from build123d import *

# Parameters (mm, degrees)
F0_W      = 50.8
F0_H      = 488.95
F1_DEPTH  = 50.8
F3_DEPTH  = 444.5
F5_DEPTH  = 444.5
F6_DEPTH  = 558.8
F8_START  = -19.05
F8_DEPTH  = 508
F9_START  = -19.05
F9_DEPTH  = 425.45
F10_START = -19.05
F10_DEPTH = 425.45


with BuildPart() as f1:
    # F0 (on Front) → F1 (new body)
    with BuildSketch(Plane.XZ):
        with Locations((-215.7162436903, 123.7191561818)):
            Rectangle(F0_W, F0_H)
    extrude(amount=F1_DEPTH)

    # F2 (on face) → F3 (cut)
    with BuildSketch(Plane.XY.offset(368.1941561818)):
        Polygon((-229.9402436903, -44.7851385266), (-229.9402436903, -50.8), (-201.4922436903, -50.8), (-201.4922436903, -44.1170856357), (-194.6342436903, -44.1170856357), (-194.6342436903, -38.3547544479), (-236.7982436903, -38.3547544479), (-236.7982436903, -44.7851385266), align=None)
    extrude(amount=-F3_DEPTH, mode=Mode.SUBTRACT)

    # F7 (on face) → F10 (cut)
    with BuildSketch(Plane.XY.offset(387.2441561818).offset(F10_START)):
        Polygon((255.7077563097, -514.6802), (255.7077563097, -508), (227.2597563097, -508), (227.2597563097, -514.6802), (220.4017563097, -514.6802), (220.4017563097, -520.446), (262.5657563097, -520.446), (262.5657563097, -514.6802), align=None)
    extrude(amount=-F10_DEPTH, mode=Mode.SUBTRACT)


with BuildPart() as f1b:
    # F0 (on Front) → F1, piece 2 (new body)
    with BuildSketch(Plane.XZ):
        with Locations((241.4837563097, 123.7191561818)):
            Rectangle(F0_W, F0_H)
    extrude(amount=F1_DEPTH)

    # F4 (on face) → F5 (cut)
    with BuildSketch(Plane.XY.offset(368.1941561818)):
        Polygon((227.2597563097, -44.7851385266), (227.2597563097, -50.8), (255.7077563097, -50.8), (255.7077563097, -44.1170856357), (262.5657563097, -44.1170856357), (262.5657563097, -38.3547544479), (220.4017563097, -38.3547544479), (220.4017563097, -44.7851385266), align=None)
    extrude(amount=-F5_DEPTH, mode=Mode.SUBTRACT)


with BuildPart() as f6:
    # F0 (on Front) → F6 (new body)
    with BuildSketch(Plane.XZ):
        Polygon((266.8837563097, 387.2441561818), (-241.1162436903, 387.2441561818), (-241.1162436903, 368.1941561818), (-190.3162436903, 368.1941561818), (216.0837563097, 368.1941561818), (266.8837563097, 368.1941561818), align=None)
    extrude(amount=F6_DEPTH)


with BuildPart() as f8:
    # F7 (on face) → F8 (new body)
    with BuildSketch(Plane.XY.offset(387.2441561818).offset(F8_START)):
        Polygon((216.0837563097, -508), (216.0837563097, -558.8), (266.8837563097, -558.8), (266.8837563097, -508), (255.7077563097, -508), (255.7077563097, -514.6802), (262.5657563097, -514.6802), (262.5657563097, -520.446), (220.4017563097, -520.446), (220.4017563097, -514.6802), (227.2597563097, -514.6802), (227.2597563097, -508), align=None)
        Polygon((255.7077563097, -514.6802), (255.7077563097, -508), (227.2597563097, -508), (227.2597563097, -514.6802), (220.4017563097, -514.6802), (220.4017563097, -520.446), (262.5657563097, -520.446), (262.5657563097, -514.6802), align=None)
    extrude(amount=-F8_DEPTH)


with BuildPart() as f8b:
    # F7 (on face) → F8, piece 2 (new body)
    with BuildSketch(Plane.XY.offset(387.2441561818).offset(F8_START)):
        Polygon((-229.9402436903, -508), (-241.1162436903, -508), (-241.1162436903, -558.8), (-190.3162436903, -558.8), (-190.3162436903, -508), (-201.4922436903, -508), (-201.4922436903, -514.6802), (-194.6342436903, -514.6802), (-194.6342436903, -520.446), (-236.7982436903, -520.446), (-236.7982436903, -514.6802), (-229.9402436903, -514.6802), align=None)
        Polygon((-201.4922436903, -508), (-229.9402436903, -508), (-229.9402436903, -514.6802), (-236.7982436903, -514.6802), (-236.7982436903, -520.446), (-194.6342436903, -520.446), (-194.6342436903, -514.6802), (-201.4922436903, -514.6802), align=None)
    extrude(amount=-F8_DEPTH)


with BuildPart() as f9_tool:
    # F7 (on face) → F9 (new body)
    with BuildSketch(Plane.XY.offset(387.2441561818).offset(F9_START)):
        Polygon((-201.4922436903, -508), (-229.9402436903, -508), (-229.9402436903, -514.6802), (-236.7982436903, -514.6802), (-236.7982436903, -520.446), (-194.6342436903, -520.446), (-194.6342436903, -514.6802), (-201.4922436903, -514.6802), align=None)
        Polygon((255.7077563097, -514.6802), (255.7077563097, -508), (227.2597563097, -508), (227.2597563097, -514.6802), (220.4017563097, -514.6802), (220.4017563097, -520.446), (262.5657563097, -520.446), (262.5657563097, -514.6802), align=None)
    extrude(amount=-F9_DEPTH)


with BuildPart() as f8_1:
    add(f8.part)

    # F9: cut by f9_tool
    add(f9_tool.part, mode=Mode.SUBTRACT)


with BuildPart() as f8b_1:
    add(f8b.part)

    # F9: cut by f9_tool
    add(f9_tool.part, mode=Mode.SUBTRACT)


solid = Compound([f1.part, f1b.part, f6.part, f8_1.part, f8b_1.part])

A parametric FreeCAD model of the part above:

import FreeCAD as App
import Part
import Sketcher
Q = App.Units.Quantity

doc = App.newDocument("Part")
body = doc.addObject("PartDesign::Body", "Body")

sketch1 = doc.addObject("Sketcher::SketchObject", "Sketch")
body.addObject(sketch1)
sketch1.AttachmentSupport = (doc.XZ_Plane, [""])
sketch1.MapMode = "FlatFace"
sketch1.addGeometry(Part.LineSegment(App.Vector(-241, 368, 0), App.Vector(-241, -121, 0)), False)
sketch1.addGeometry(Part.LineSegment(App.Vector(-241, -121, 0), App.Vector(-190, -121, 0)), False)
sketch1.addGeometry(Part.LineSegment(App.Vector(-190, -121, 0), App.Vector(-190, 368, 0)), False)
sketch1.addGeometry(Part.LineSegment(App.Vector(-190, 368, 0), App.Vector(-241, 368, 0)), False)
sketch1.addConstraint(Sketcher.Constraint("Coincident", 0, 2, 1, 1))
sketch1.addConstraint(Sketcher.Constraint("Coincident", 1, 2, 2, 1))
sketch1.addConstraint(Sketcher.Constraint("Coincident", 2, 2, 3, 1))
sketch1.addConstraint(Sketcher.Constraint("Coincident", 3, 2, 0, 1))
sketch1.addConstraint(Sketcher.Constraint("Vertical", 0))
sketch1.addConstraint(Sketcher.Constraint("Horizontal", 1))
sketch1.addConstraint(Sketcher.Constraint("Vertical", 2))
sketch1.addConstraint(Sketcher.Constraint("Horizontal", 3))
sketch1.addConstraint(Sketcher.Constraint("DistanceX", 1, 1, 1, 2, Q("2 in")))
sketch1.addConstraint(Sketcher.Constraint("DistanceY", 0, 2, 0, 1, Q("19.25 in")))
sketch1.addConstraint(Sketcher.Constraint("DistanceX", 0, 2, -1, 1, Q("241.116244 mm")))
sketch1.addConstraint(Sketcher.Constraint("DistanceY", 0, 2, -1, 1, Q("120.755844 mm")))
pad1 = doc.addObject("PartDesign::Pad", "Pad")
body.addObject(pad1)
pad1.Profile = sketch1
pad1.Length = Q("2 in")

sketch2 = doc.addObject("Sketcher::SketchObject", "Sketch001")
body.addObject(sketch2)
sketch2.AttachmentSupport = (doc.XY_Plane, [""])
sketch2.MapMode = "FlatFace"
sketch2.AttachmentOffset = App.Placement(App.Vector(0, 0, 368.194156), App.Rotation())
sketch2.addGeometry(Part.LineSegment(App.Vector(-230, -45, 0), App.Vector(-230, -51, 0)), False)
sketch2.addGeometry(Part.LineSegment(App.Vector(-230, -51, 0), App.Vector(-201, -51, 0)), False)
sketch2.addGeometry(Part.LineSegment(App.Vector(-201, -51, 0), App.Vector(-201, -44, 0)), False)
sketch2.addGeometry(Part.LineSegment(App.Vector(-201, -44, 0), App.Vector(-195, -44, 0)), False)
sketch2.addGeometry(Part.LineSegment(App.Vector(-195, -44, 0), App.Vector(-195, -38, 0)), False)
sketch2.addGeometry(Part.LineSegment(App.Vector(-195, -38, 0), App.Vector(-237, -38, 0)), False)
sketch2.addGeometry(Part.LineSegment(App.Vector(-237, -38, 0), App.Vector(-237, -45, 0)), False)
sketch2.addGeometry(Part.LineSegment(App.Vector(-237, -45, 0), App.Vector(-230, -45, 0)), False)
sketch2.addConstraint(Sketcher.Constraint("Coincident", 0, 2, 1, 1))
sketch2.addConstraint(Sketcher.Constraint("Coincident", 1, 2, 2, 1))
sketch2.addConstraint(Sketcher.Constraint("Coincident", 2, 2, 3, 1))
sketch2.addConstraint(Sketcher.Constraint("Coincident", 3, 2, 4, 1))
sketch2.addConstraint(Sketcher.Constraint("Coincident", 4, 2, 5, 1))
sketch2.addConstraint(Sketcher.Constraint("Coincident", 5, 2, 6, 1))
sketch2.addConstraint(Sketcher.Constraint("Coincident", 6, 2, 7, 1))
sketch2.addConstraint(Sketcher.Constraint("Coincident", 7, 2, 0, 1))
sketch2.addConstraint(Sketcher.Constraint("Vertical", 0))
sketch2.addConstraint(Sketcher.Constraint("Horizontal", 1))
sketch2.addConstraint(Sketcher.Constraint("Vertical", 2))
sketch2.addConstraint(Sketcher.Constraint("Horizontal", 3))
sketch2.addConstraint(Sketcher.Constraint("Vertical", 4))
sketch2.addConstraint(Sketcher.Constraint("Horizontal", 5))
sketch2.addConstraint(Sketcher.Constraint("Vertical", 6))
sketch2.addConstraint(Sketcher.Constraint("Horizontal", 7))
sketch2.addConstraint(Sketcher.Constraint("Equal", 3, 7))
sketch2.addConstraint(Sketcher.Constraint("DistanceY", 0, 2, -1, 1, Q("2 in")))
sketch2.addConstraint(Sketcher.Constraint("DistanceX", 1, 1, 1, 2, Q("1.12 in")))
sketch2.addConstraint(Sketcher.Constraint("DistanceX", 3, 1, 3, 2, Q("0.27 in")))
sketch2.addConstraint(Sketcher.Constraint("DistanceY", 0, 2, 0, 1, Q("6.014861 mm")))
sketch2.addConstraint(Sketcher.Constraint("DistanceY", 4, 1, 4, 2, Q("5.762331 mm")))
sketch2.addConstraint(Sketcher.Constraint("DistanceY", 2, 1, 2, 2, Q("6.682914 mm")))
sketch2.addConstraint(Sketcher.Constraint("DistanceX", 0, 2, -1, 1, Q("229.940244 mm")))
pocket1 = doc.addObject("PartDesign::Pocket", "Pocket")
body.addObject(pocket1)
pocket1.Profile = sketch2
pocket1.Length = Q("17.5 in")

sketch3 = doc.addObject("Sketcher::SketchObject", "Sketch002")
body.addObject(sketch3)
sketch3.AttachmentSupport = (doc.XY_Plane, [""])
sketch3.MapMode = "FlatFace"
sketch3.AttachmentOffset = App.Placement(App.Vector(0, 0, 368.194156), App.Rotation())
sketch3.addGeometry(Part.LineSegment(App.Vector(256, -515, 0), App.Vector(256, -508, 0)), False)
sketch3.addGeometry(Part.LineSegment(App.Vector(256, -508, 0), App.Vector(227, -508, 0)), False)
sketch3.addGeometry(Part.LineSegment(App.Vector(227, -508, 0), App.Vector(227, -515, 0)), False)
sketch3.addGeometry(Part.LineSegment(App.Vector(227, -515, 0), App.Vector(220, -515, 0)), False)
sketch3.addGeometry(Part.LineSegment(App.Vector(220, -515, 0), App.Vector(220, -520, 0)), False)
sketch3.addGeometry(Part.LineSegment(App.Vector(220, -520, 0), App.Vector(263, -520, 0)), False)
sketch3.addGeometry(Part.LineSegment(App.Vector(263, -520, 0), App.Vector(263, -515, 0)), False)
sketch3.addGeometry(Part.LineSegment(App.Vector(263, -515, 0), App.Vector(256, -515, 0)), False)
sketch3.addConstraint(Sketcher.Constraint("Coincident", 0, 2, 1, 1))
sketch3.addConstraint(Sketcher.Constraint("Coincident", 1, 2, 2, 1))
sketch3.addConstraint(Sketcher.Constraint("Coincident", 2, 2, 3, 1))
sketch3.addConstraint(Sketcher.Constraint("Coincident", 3, 2, 4, 1))
sketch3.addConstraint(Sketcher.Constraint("Coincident", 4, 2, 5, 1))
sketch3.addConstraint(Sketcher.Constraint("Coincident", 5, 2, 6, 1))
sketch3.addConstraint(Sketcher.Constraint("Coincident", 6, 2, 7, 1))
sketch3.addConstraint(Sketcher.Constraint("Coincident", 7, 2, 0, 1))
sketch3.addConstraint(Sketcher.Constraint("Vertical", 0))
sketch3.addConstraint(Sketcher.Constraint("Horizontal", 1))
sketch3.addConstraint(Sketcher.Constraint("Vertical", 2))
sketch3.addConstraint(Sketcher.Constraint("Horizontal", 3))
sketch3.addConstraint(Sketcher.Constraint("Vertical", 4))
sketch3.addConstraint(Sketcher.Constraint("Horizontal", 5))
sketch3.addConstraint(Sketcher.Constraint("Vertical", 6))
sketch3.addConstraint(Sketcher.Constraint("Horizontal", 7))
sketch3.addConstraint(Sketcher.Constraint("Horizontal", 3, 2, 6, 2))
sketch3.addConstraint(Sketcher.Constraint("Equal", 3, 7))
sketch3.addConstraint(Sketcher.Constraint("DistanceY", 0, 2, -1, 1, Q("20 in")))
sketch3.addConstraint(Sketcher.Constraint("DistanceX", 1, 2, 1, 1, Q("1.12 in")))
sketch3.addConstraint(Sketcher.Constraint("DistanceX", 3, 2, 3, 1, Q("0.27 in")))
sketch3.addConstraint(Sketcher.Constraint("DistanceY", 0, 1, 0, 2, Q("0.263 in")))
sketch3.addConstraint(Sketcher.Constraint("DistanceY", 4, 2, 4, 1, Q("0.227 in")))
sketch3.addConstraint(Sketcher.Constraint("DistanceX", -1, 1, 0, 2, Q("255.707756 mm")))
pocket2 = doc.addObject("PartDesign::Pocket", "Pocket001")
body.addObject(pocket2)
pocket2.Profile = sketch3
pocket2.Length = Q("16.75 in")
body2 = doc.addObject("PartDesign::Body", "Body001")

sketch4 = doc.addObject("Sketcher::SketchObject", "Sketch003")
body2.addObject(sketch4)
sketch4.AttachmentSupport = (doc.getObject("XZ_Plane001"), [""])
sketch4.MapMode = "FlatFace"
sketch4.addGeometry(Part.LineSegment(App.Vector(216, 368, 0), App.Vector(216, -121, 0)), False)
sketch4.addGeometry(Part.LineSegment(App.Vector(216, -121, 0), App.Vector(267, -121, 0)), False)
sketch4.addGeometry(Part.LineSegment(App.Vector(267, -121, 0), App.Vector(267, 368, 0)), False)
sketch4.addGeometry(Part.LineSegment(App.Vector(267, 368, 0), App.Vector(216, 368, 0)), False)
sketch4.addConstraint(Sketcher.Constraint("Coincident", 0, 2, 1, 1))
sketch4.addConstraint(Sketcher.Constraint("Coincident", 1, 2, 2, 1))
sketch4.addConstraint(Sketcher.Constraint("Coincident", 2, 2, 3, 1))
sketch4.addConstraint(Sketcher.Constraint("Coincident", 3, 2, 0, 1))
sketch4.addConstraint(Sketcher.Constraint("Vertical", 0))
sketch4.addConstraint(Sketcher.Constraint("Horizontal", 1))
sketch4.addConstraint(Sketcher.Constraint("Vertical", 2))
sketch4.addConstraint(Sketcher.Constraint("Horizontal", 3))
sketch4.addConstraint(Sketcher.Constraint("DistanceX", 1, 1, 1, 2, Q("2 in")))
sketch4.addConstraint(Sketcher.Constraint("DistanceY", 0, 2, 0, 1, Q("19.25 in")))
sketch4.addConstraint(Sketcher.Constraint("DistanceX", -1, 1, 0, 2, Q("216.083756 mm")))
sketch4.addConstraint(Sketcher.Constraint("DistanceY", 0, 2, -1, 1, Q("120.755844 mm")))
pad2 = doc.addObject("PartDesign::Pad", "Pad001")
body2.addObject(pad2)
pad2.Profile = sketch4
pad2.Length = Q("2 in")

sketch5 = doc.addObject("Sketcher::SketchObject", "Sketch004")
body2.addObject(sketch5)
sketch5.AttachmentSupport = (doc.getObject("XY_Plane001"), [""])
sketch5.MapMode = "FlatFace"
sketch5.AttachmentOffset = App.Placement(App.Vector(0, 0, 368.194156), App.Rotation())
sketch5.addGeometry(Part.LineSegment(App.Vector(227, -45, 0), App.Vector(227, -51, 0)), False)
sketch5.addGeometry(Part.LineSegment(App.Vector(227, -51, 0), App.Vector(256, -51, 0)), False)
sketch5.addGeometry(Part.LineSegment(App.Vector(256, -51, 0), App.Vector(256, -44, 0)), False)
sketch5.addGeometry(Part.LineSegment(App.Vector(256, -44, 0), App.Vector(263, -44, 0)), False)
sketch5.addGeometry(Part.LineSegment(App.Vector(263, -44, 0), App.Vector(263, -38, 0)), False)
sketch5.addGeometry(Part.LineSegment(App.Vector(263, -38, 0), App.Vector(220, -38, 0)), False)
sketch5.addGeometry(Part.LineSegment(App.Vector(220, -38, 0), App.Vector(220, -45, 0)), False)
sketch5.addGeometry(Part.LineSegment(App.Vector(220, -45, 0), App.Vector(227, -45, 0)), False)
sketch5.addConstraint(Sketcher.Constraint("Coincident", 0, 2, 1, 1))
sketch5.addConstraint(Sketcher.Constraint("Coincident", 1, 2, 2, 1))
sketch5.addConstraint(Sketcher.Constraint("Coincident", 2, 2, 3, 1))
sketch5.addConstraint(Sketcher.Constraint("Coincident", 3, 2, 4, 1))
sketch5.addConstraint(Sketcher.Constraint("Coincident", 4, 2, 5, 1))
sketch5.addConstraint(Sketcher.Constraint("Coincident", 5, 2, 6, 1))
sketch5.addConstraint(Sketcher.Constraint("Coincident", 6, 2, 7, 1))
sketch5.addConstraint(Sketcher.Constraint("Coincident", 7, 2, 0, 1))
sketch5.addConstraint(Sketcher.Constraint("Vertical", 0))
sketch5.addConstraint(Sketcher.Constraint("Horizontal", 1))
sketch5.addConstraint(Sketcher.Constraint("Vertical", 2))
sketch5.addConstraint(Sketcher.Constraint("Horizontal", 3))
sketch5.addConstraint(Sketcher.Constraint("Vertical", 4))
sketch5.addConstraint(Sketcher.Constraint("Horizontal", 5))
sketch5.addConstraint(Sketcher.Constraint("Vertical", 6))
sketch5.addConstraint(Sketcher.Constraint("Horizontal", 7))
sketch5.addConstraint(Sketcher.Constraint("Equal", 3, 7))
sketch5.addConstraint(Sketcher.Constraint("DistanceY", 0, 2, -1, 1, Q("2 in")))
sketch5.addConstraint(Sketcher.Constraint("DistanceX", 1, 1, 1, 2, Q("1.12 in")))
sketch5.addConstraint(Sketcher.Constraint("DistanceX", 3, 1, 3, 2, Q("0.27 in")))
sketch5.addConstraint(Sketcher.Constraint("DistanceY", 0, 2, 0, 1, Q("6.014861 mm")))
sketch5.addConstraint(Sketcher.Constraint("DistanceY", 4, 1, 4, 2, Q("5.762331 mm")))
sketch5.addConstraint(Sketcher.Constraint("DistanceY", 2, 1, 2, 2, Q("6.682914 mm")))
sketch5.addConstraint(Sketcher.Constraint("DistanceX", -1, 1, 0, 2, Q("227.259756 mm")))
pocket3 = doc.addObject("PartDesign::Pocket", "Pocket002")
body2.addObject(pocket3)
pocket3.Profile = sketch5
pocket3.Length = Q("17.5 in")
body3 = doc.addObject("PartDesign::Body", "Body002")

sketch6 = doc.addObject("Sketcher::SketchObject", "Sketch005")
body3.addObject(sketch6)
sketch6.AttachmentSupport = (doc.getObject("XZ_Plane002"), [""])
sketch6.MapMode = "FlatFace"
sketch6.addGeometry(Part.LineSegment(App.Vector(267, 387, 0), App.Vector(-241, 387, 0)), False)
sketch6.addGeometry(Part.LineSegment(App.Vector(-241, 387, 0), App.Vector(-241, 368, 0)), False)
sketch6.addGeometry(Part.LineSegment(App.Vector(-241, 368, 0), App.Vector(267, 368, 0)), False)
sketch6.addGeometry(Part.LineSegment(App.Vector(267, 368, 0), App.Vector(267, 387, 0)), False)
sketch6.addConstraint(Sketcher.Constraint("Coincident", 0, 2, 1, 1))
sketch6.addConstraint(Sketcher.Constraint("Coincident", 1, 2, 2, 1))
sketch6.addConstraint(Sketcher.Constraint("Coincident", 2, 2, 3, 1))
sketch6.addConstraint(Sketcher.Constraint("Coincident", 3, 2, 0, 1))
sketch6.addConstraint(Sketcher.Constraint("Horizontal", 0))
sketch6.addConstraint(Sketcher.Constraint("Vertical", 1))
sketch6.addConstraint(Sketcher.Constraint("Horizontal", 2))
sketch6.addConstraint(Sketcher.Constraint("Vertical", 3))
sketch6.addConstraint(Sketcher.Constraint("DistanceX", 0, 2, 0, 1, Q("20 in")))
sketch6.addConstraint(Sketcher.Constraint("DistanceY", 1, 2, 1, 1, Q("0.75 in")))
sketch6.addConstraint(Sketcher.Constraint("DistanceX", 0, 2, -1, 1, Q("241.116244 mm")))
sketch6.addConstraint(Sketcher.Constraint("DistanceY", -1, 1, 0, 2, Q("387.244156 mm")))
pad3 = doc.addObject("PartDesign::Pad", "Pad002")
body3.addObject(pad3)
pad3.Profile = sketch6
pad3.Length = Q("22 in")
body4 = doc.addObject("PartDesign::Body", "Body003")

sketch7 = doc.addObject("Sketcher::SketchObject", "Sketch006")
body4.addObject(sketch7)
sketch7.AttachmentSupport = (doc.getObject("XY_Plane003"), [""])
sketch7.MapMode = "FlatFace"
sketch7.AttachmentOffset = App.Placement(App.Vector(0, 0, 368.194156), App.Rotation())
sketch7.addGeometry(Part.LineSegment(App.Vector(216, -508, 0), App.Vector(216, -559, 0)), False)
sketch7.addGeometry(Part.LineSegment(App.Vector(216, -559, 0), App.Vector(267, -559, 0)), False)
sketch7.addGeometry(Part.LineSegment(App.Vector(267, -559, 0), App.Vector(267, -508, 0)), False)
sketch7.addGeometry(Part.LineSegment(App.Vector(267, -508, 0), App.Vector(216, -508, 0)), False)
sketch7.addConstraint(Sketcher.Constraint("Coincident", 0, 2, 1, 1))
sketch7.addConstraint(Sketcher.Constraint("Coincident", 1, 2, 2, 1))
sketch7.addConstraint(Sketcher.Constraint("Coincident", 2, 2, 3, 1))
sketch7.addConstraint(Sketcher.Constraint("Coincident", 3, 2, 0, 1))
sketch7.addConstraint(Sketcher.Constraint("Vertical", 0))
sketch7.addConstraint(Sketcher.Constraint("Horizontal", 1))
sketch7.addConstraint(Sketcher.Constraint("Vertical", 2))
sketch7.addConstraint(Sketcher.Constraint("Horizontal", 3))
sketch7.addConstraint(Sketcher.Constraint("Equal", 3, 0))
sketch7.addConstraint(Sketcher.Constraint("DistanceX", 1, 1, 1, 2, Q("2 in")))
sketch7.addConstraint(Sketcher.Constraint("DistanceY", 0, 2, -1, 1, Q("22 in")))
sketch7.addConstraint(Sketcher.Constraint("DistanceX", -1, 1, 0, 2, Q("216.083756 mm")))
pad4 = doc.addObject("PartDesign::Pad", "Pad003")
body4.addObject(pad4)
pad4.Profile = sketch7
pad4.Length = Q("20 in")
pad4.Reversed = True
body5 = doc.addObject("PartDesign::Body", "Body004")

sketch8 = doc.addObject("Sketcher::SketchObject", "Sketch007")
body5.addObject(sketch8)
sketch8.AttachmentSupport = (doc.getObject("XY_Plane004"), [""])
sketch8.MapMode = "FlatFace"
sketch8.AttachmentOffset = App.Placement(App.Vector(0, 0, 368.194156), App.Rotation())
sketch8.addGeometry(Part.LineSegment(App.Vector(-241, -508, 0), App.Vector(-241, -559, 0)), False)
sketch8.addGeometry(Part.LineSegment(App.Vector(-241, -559, 0), App.Vector(-190, -559, 0)), False)
sketch8.addGeometry(Part.LineSegment(App.Vector(-190, -559, 0), App.Vector(-190, -508, 0)), False)
sketch8.addGeometry(Part.LineSegment(App.Vector(-190, -508, 0), App.Vector(-241, -508, 0)), False)
sketch8.addConstraint(Sketcher.Constraint("Coincident", 0, 2, 1, 1))
sketch8.addConstraint(Sketcher.Constraint("Coincident", 1, 2, 2, 1))
sketch8.addConstraint(Sketcher.Constraint("Coincident", 2, 2, 3, 1))
sketch8.addConstraint(Sketcher.Constraint("Coincident", 3, 2, 0, 1))
sketch8.addConstraint(Sketcher.Constraint("Vertical", 0))
sketch8.addConstraint(Sketcher.Constraint("Horizontal", 1))
sketch8.addConstraint(Sketcher.Constraint("Vertical", 2))
sketch8.addConstraint(Sketcher.Constraint("Horizontal", 3))
sketch8.addConstraint(Sketcher.Constraint("Equal", 3, 0))
sketch8.addConstraint(Sketcher.Constraint("DistanceX", 1, 1, 1, 2, Q("2 in")))
sketch8.addConstraint(Sketcher.Constraint("DistanceY", 0, 2, -1, 1, Q("22 in")))
sketch8.addConstraint(Sketcher.Constraint("DistanceX", 0, 2, -1, 1, Q("241.116244 mm")))
pad5 = doc.addObject("PartDesign::Pad", "Pad004")
body5.addObject(pad5)
pad5.Profile = sketch8
pad5.Length = Q("20 in")
pad5.Reversed = True
body6 = doc.addObject("PartDesign::Body", "Body005")
body6.AllowCompound = True

sketch9 = doc.addObject("Sketcher::SketchObject", "Sketch008")
body6.addObject(sketch9)
sketch9.AttachmentSupport = (doc.getObject("XY_Plane005"), [""])
sketch9.MapMode = "FlatFace"
sketch9.AttachmentOffset = App.Placement(App.Vector(0, 0, 368.194156), App.Rotation())
sketch9.addGeometry(Part.LineSegment(App.Vector(-201, -508, 0), App.Vector(-230, -508, 0)), False)
sketch9.addGeometry(Part.LineSegment(App.Vector(-230, -508, 0), App.Vector(-230, -515, 0)), False)
sketch9.addGeometry(Part.LineSegment(App.Vector(-230, -515, 0), App.Vector(-237, -515, 0)), False)
sketch9.addGeometry(Part.LineSegment(App.Vector(-237, -515, 0), App.Vector(-237, -520, 0)), False)
sketch9.addGeometry(Part.LineSegment(App.Vector(-237, -520, 0), App.Vector(-195, -520, 0)), False)
sketch9.addGeometry(Part.LineSegment(App.Vector(-195, -520, 0), App.Vector(-195, -515, 0)), False)
sketch9.addGeometry(Part.LineSegment(App.Vector(-195, -515, 0), App.Vector(-201, -515, 0)), False)
sketch9.addGeometry(Part.LineSegment(App.Vector(-201, -515, 0), App.Vector(-201, -508, 0)), False)
sketch9.addGeometry(Part.LineSegment(App.Vector(256, -515, 0), App.Vector(256, -508, 0)), False)
sketch9.addGeometry(Part.LineSegment(App.Vector(256, -508, 0), App.Vector(227, -508, 0)), False)
sketch9.addGeometry(Part.LineSegment(App.Vector(227, -508, 0), App.Vector(227, -515, 0)), False)
sketch9.addGeometry(Part.LineSegment(App.Vector(227, -515, 0), App.Vector(220, -515, 0)), False)
sketch9.addGeometry(Part.LineSegment(App.Vector(220, -515, 0), App.Vector(220, -520, 0)), False)
sketch9.addGeometry(Part.LineSegment(App.Vector(220, -520, 0), App.Vector(263, -520, 0)), False)
sketch9.addGeometry(Part.LineSegment(App.Vector(263, -520, 0), App.Vector(263, -515, 0)), False)
sketch9.addGeometry(Part.LineSegment(App.Vector(263, -515, 0), App.Vector(256, -515, 0)), False)
sketch9.addConstraint(Sketcher.Constraint("Coincident", 0, 2, 1, 1))
sketch9.addConstraint(Sketcher.Constraint("Coincident", 1, 2, 2, 1))
sketch9.addConstraint(Sketcher.Constraint("Coincident", 2, 2, 3, 1))
sketch9.addConstraint(Sketcher.Constraint("Coincident", 3, 2, 4, 1))
sketch9.addConstraint(Sketcher.Constraint("Coincident", 4, 2, 5, 1))
sketch9.addConstraint(Sketcher.Constraint("Coincident", 5, 2, 6, 1))
sketch9.addConstraint(Sketcher.Constraint("Coincident", 6, 2, 7, 1))
sketch9.addConstraint(Sketcher.Constraint("Coincident", 7, 2, 0, 1))
sketch9.addConstraint(Sketcher.Constraint("Coincident", 8, 2, 9, 1))
sketch9.addConstraint(Sketcher.Constraint("Coincident", 9, 2, 10, 1))
sketch9.addConstraint(Sketcher.Constraint("Coincident", 10, 2, 11, 1))
sketch9.addConstraint(Sketcher.Constraint("Coincident", 11, 2, 12, 1))
sketch9.addConstraint(Sketcher.Constraint("Coincident", 12, 2, 13, 1))
sketch9.addConstraint(Sketcher.Constraint("Coincident", 13, 2, 14, 1))
sketch9.addConstraint(Sketcher.Constraint("Coincident", 14, 2, 15, 1))
sketch9.addConstraint(Sketcher.Constraint("Coincident", 15, 2, 8, 1))
sketch9.addConstraint(Sketcher.Constraint("Horizontal", 0))
sketch9.addConstraint(Sketcher.Constraint("Vertical", 1))
sketch9.addConstraint(Sketcher.Constraint("Horizontal", 2))
sketch9.addConstraint(Sketcher.Constraint("Vertical", 3))
sketch9.addConstraint(Sketcher.Constraint("Horizontal", 4))
sketch9.addConstraint(Sketcher.Constraint("Vertical", 5))
sketch9.addConstraint(Sketcher.Constraint("Horizontal", 6))
sketch9.addConstraint(Sketcher.Constraint("Vertical", 7))
sketch9.addConstraint(Sketcher.Constraint("Vertical", 8))
sketch9.addConstraint(Sketcher.Constraint("Horizontal", 9))
sketch9.addConstraint(Sketcher.Constraint("Vertical", 10))
sketch9.addConstraint(Sketcher.Constraint("Horizontal", 11))
sketch9.addConstraint(Sketcher.Constraint("Vertical", 12))
sketch9.addConstraint(Sketcher.Constraint("Horizontal", 13))
sketch9.addConstraint(Sketcher.Constraint("Vertical", 14))
sketch9.addConstraint(Sketcher.Constraint("Horizontal", 15))
sketch9.addConstraint(Sketcher.Constraint("Horizontal", 2, 2, 5, 2))
sketch9.addConstraint(Sketcher.Constraint("Horizontal", 7, 2, 8, 2))
sketch9.addConstraint(Sketcher.Constraint("Horizontal", 6, 2, 10, 2))
sketch9.addConstraint(Sketcher.Constraint("Horizontal", 4, 2, 12, 2))
sketch9.addConstraint(Sketcher.Constraint("Horizontal", 11, 2, 14, 2))
sketch9.addConstraint(Sketcher.Constraint("Equal", 2, 6))
sketch9.addConstraint(Sketcher.Constraint("Equal", 0, 9))
sketch9.addConstraint(Sketcher.Constraint("Equal", 6, 11))
sketch9.addConstraint(Sketcher.Constraint("Equal", 4, 13))
sketch9.addConstraint(Sketcher.Constraint("DistanceY", 0, 2, -1, 1, Q("20 in")))
sketch9.addConstraint(Sketcher.Constraint("DistanceX", 7, 2, 8, 2, Q("18 in")))
sketch9.addConstraint(Sketcher.Constraint("DistanceX", 0, 2, 0, 1, Q("1.12 in")))
sketch9.addConstraint(Sketcher.Constraint("DistanceX", 2, 2, 2, 1, Q("0.27 in")))
sketch9.addConstraint(Sketcher.Constraint("DistanceY", 1, 2, 1, 1, Q("0.263 in")))
sketch9.addConstraint(Sketcher.Constraint("DistanceY", 3, 2, 3, 1, Q("0.227 in")))
sketch9.addConstraint(Sketcher.Constraint("DistanceX", 0, 2, -1, 1, Q("229.940244 mm")))
pad6 = doc.addObject("PartDesign::Pad", "Pad005")
body6.addObject(pad6)
pad6.Profile = sketch9
pad6.Length = Q("16.75 in")
pad6.Reversed = True
doc.recompute()

body7 = doc.addObject("PartDesign::Body", "Body006")
body7.BaseFeature = body6
boolean = doc.addObject("PartDesign::Boolean", "Boolean")
body4.addObject(boolean)
boolean.Type = "Cut"
boolean.addObjects([body7])
doc.recompute()

boolean2 = doc.addObject("PartDesign::Boolean", "Boolean001")
body5.addObject(boolean2)
boolean2.Type = "Cut"
boolean2.addObjects([body6])

doc.recompute()
